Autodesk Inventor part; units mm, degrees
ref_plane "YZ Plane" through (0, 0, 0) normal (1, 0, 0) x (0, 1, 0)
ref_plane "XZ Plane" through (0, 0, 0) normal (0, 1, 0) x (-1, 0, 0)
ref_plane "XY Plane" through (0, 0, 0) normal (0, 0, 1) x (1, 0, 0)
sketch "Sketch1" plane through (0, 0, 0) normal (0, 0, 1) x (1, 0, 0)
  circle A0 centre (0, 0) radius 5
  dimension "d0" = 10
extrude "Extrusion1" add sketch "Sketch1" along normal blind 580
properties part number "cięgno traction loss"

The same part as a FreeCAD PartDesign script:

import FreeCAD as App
import Part
import Sketcher

doc = App.newDocument("Part")
body = doc.addObject("PartDesign::Body", "Body")

sketch1 = body.newObject("Sketcher::SketchObject", "Sketch")
sketch1.AttachmentSupport = (doc.getObject("XY_Plane"), [""])
sketch1.MapMode = "FlatFace"
sketch1.addGeometry(Part.Circle(App.Vector(0, 0, 0), App.Vector(0, 0, 1), 5), False)
sketch1.addConstraint([
    Sketcher.Constraint("Coincident", 0, 3, -1, 1),
    Sketcher.Constraint("Diameter", 0, 10.0),
])
pad1 = body.newObject("PartDesign::Pad", "Pad")
pad1.Profile = sketch1
pad1.Length = 580

doc.recompute()
